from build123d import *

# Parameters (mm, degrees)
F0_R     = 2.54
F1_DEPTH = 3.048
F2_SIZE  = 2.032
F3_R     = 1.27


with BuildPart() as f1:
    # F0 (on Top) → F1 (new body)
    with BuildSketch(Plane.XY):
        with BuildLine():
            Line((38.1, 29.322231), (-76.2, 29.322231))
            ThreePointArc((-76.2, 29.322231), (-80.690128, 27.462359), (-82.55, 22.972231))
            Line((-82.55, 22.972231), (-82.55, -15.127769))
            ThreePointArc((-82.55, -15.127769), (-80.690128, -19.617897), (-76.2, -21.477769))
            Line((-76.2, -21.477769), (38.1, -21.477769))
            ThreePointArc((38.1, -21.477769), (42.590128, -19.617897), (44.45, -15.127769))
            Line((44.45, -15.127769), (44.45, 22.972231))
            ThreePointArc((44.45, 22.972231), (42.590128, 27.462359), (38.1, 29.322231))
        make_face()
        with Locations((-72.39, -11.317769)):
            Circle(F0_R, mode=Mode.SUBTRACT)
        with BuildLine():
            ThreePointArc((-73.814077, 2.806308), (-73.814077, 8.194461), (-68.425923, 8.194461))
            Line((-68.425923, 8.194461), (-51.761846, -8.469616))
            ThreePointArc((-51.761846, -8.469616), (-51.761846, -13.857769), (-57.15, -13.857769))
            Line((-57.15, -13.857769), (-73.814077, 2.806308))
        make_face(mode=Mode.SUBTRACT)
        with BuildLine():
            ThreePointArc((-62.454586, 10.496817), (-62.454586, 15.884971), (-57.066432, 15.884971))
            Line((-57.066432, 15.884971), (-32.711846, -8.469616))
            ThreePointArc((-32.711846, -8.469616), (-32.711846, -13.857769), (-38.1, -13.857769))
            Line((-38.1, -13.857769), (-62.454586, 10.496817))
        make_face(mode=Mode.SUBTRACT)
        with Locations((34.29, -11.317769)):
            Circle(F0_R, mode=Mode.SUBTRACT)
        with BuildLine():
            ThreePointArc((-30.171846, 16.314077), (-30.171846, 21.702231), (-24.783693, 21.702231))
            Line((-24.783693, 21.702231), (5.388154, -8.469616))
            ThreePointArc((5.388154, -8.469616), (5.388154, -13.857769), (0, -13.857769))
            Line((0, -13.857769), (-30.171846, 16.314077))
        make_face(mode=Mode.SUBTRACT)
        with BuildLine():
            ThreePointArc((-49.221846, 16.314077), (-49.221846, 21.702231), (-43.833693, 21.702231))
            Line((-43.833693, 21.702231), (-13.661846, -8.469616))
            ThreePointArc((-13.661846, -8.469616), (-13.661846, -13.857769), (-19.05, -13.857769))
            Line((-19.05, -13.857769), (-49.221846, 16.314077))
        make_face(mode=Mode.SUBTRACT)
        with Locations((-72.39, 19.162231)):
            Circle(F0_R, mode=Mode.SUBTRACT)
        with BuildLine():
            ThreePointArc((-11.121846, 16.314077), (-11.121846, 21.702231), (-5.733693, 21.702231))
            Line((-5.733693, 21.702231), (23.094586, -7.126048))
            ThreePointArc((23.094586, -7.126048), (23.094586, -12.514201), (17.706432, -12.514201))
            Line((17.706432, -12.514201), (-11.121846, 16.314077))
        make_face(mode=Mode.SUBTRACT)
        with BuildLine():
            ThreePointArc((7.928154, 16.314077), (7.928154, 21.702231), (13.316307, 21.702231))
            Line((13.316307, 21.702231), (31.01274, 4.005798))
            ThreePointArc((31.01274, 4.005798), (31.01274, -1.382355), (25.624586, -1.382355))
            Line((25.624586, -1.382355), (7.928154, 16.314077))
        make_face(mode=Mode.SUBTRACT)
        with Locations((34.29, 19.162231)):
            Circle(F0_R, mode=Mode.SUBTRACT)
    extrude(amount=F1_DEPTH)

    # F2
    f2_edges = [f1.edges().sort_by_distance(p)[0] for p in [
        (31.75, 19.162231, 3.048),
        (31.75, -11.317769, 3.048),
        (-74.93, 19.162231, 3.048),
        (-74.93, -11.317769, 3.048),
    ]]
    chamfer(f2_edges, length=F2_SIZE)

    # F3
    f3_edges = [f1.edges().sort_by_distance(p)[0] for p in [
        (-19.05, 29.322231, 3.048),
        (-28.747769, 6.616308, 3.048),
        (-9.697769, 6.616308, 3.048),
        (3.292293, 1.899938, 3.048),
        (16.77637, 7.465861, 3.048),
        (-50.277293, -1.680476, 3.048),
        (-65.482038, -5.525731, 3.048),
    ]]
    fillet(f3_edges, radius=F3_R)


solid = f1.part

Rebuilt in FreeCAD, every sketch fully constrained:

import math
import FreeCAD as App
import Part
import Sketcher

V = App.Vector
Q = App.Units.Quantity


def edges_at(feature, points):
    """Names of the edges that pass closest to the given points."""
    edges = feature.Shape.Edges
    near = lambda p: min(range(len(edges)), key=lambda i: edges[i].distToShape(Part.Vertex(*p))[0])
    return sorted({f"Edge{near(p) + 1}" for p in points})

doc = App.newDocument("Part")
body = doc.addObject("PartDesign::Body", "Body")

sketch1 = body.newObject("Sketcher::SketchObject", "Sketch")
sketch1.AttachmentSupport = (doc.getObject("XY_Plane"), [""])
sketch1.MapMode = "FlatFace"
sketch1.addGeometry([
    Part.LineSegment(V(38.1, 29.322231, 0), V(-76.2, 29.322231, 0)),
    Part.ArcOfCircle(Part.Circle(V(-76.2, 22.972231, 0), V(0, 0, 1), 6.35), math.radians(90.000002), math.radians(179.999998)),
    Part.LineSegment(V(-82.55, 22.972231, 0), V(-82.55, -15.127769, 0)),
    Part.ArcOfCircle(Part.Circle(V(-76.2, -15.127769, 0), V(0, 0, 1), 6.35), math.radians(-179.999998), math.radians(-90.000002)),
    Part.LineSegment(V(-76.2, -21.477769, 0), V(38.1, -21.477769, 0)),
    Part.ArcOfCircle(Part.Circle(V(38.1, -15.127769, 0), V(0, 0, 1), 6.35), math.radians(-89.999998), math.radians(-0.000002)),
    Part.LineSegment(V(44.45, -15.127769, 0), V(44.45, 22.972231, 0)),
    Part.ArcOfCircle(Part.Circle(V(38.1, 22.972231, 0), V(0, 0, 1), 6.35), math.radians(0.000002), math.radians(89.999998)),
    Part.Circle(V(-72.39, -11.317769, 0), V(0, 0, 1), 2.54),
    Part.LineSegment(V(-57.15, -13.857769, 0), V(-73.814077, 2.806308, 0)),
    Part.ArcOfCircle(Part.Circle(V(-71.12, 5.500385, 0), V(0, 0, 1), 3.81), math.radians(44.999995), math.radians(224.999995)),
    Part.LineSegment(V(-68.425923, 8.194461, 0), V(-51.761846, -8.469616, 0)),
    Part.ArcOfCircle(Part.Circle(V(-54.455923, -11.163692, 0), V(0, 0, 1), 3.81), math.radians(-135.000005), math.radians(44.999995)),
    Part.LineSegment(V(-38.1, -13.857769, 0), V(-62.454586, 10.496817, 0)),
    Part.ArcOfCircle(Part.Circle(V(-59.760509, 13.190894, 0), V(0, 0, 1), 3.81), math.radians(45), math.radians(225)),
    Part.LineSegment(V(-57.066432, 15.884971, 0), V(-32.711846, -8.469616, 0)),
    Part.ArcOfCircle(Part.Circle(V(-35.405923, -11.163692, 0), V(0, 0, 1), 3.81), math.radians(-135.000005), math.radians(44.999995)),
    Part.Circle(V(34.29, -11.317769, 0), V(0, 0, 1), 2.54),
    Part.LineSegment(V(0, -13.857769, 0), V(-30.171846, 16.314077, 0)),
    Part.ArcOfCircle(Part.Circle(V(-27.47777, 19.008154, 0), V(0, 0, 1), 3.81), math.radians(45.000005), math.radians(225.000005)),
    Part.LineSegment(V(-24.783693, 21.702231, 0), V(5.388154, -8.469616, 0)),
    Part.ArcOfCircle(Part.Circle(V(2.694077, -11.163692, 0), V(0, 0, 1), 3.81), math.radians(-135.000005), math.radians(44.999995)),
    Part.LineSegment(V(-19.05, -13.857769, 0), V(-49.221846, 16.314077, 0)),
    Part.ArcOfCircle(Part.Circle(V(-46.527769, 19.008154, 0), V(0, 0, 1), 3.81), math.radians(45.000005), math.radians(225.000005)),
    Part.LineSegment(V(-43.833693, 21.702231, 0), V(-13.661846, -8.469616, 0)),
    Part.ArcOfCircle(Part.Circle(V(-16.355923, -11.163692, 0), V(0, 0, 1), 3.81), math.radians(-135.000005), math.radians(44.999995)),
    Part.Circle(V(-72.39, 19.162231, 0), V(0, 0, 1), 2.54),
    Part.LineSegment(V(17.706432, -12.514201, 0), V(-11.121846, 16.314077, 0)),
    Part.ArcOfCircle(Part.Circle(V(-8.42777, 19.008154, 0), V(0, 0, 1), 3.81), math.radians(45.000005), math.radians(225.000005)),
    Part.LineSegment(V(-5.733693, 21.702231, 0), V(23.094586, -7.126048, 0)),
    Part.ArcOfCircle(Part.Circle(V(20.400509, -9.820125, 0), V(0, 0, 1), 3.81), math.radians(-135.000005), math.radians(44.999995)),
    Part.LineSegment(V(25.624586, -1.382355, 0), V(7.928154, 16.314077, 0)),
    Part.ArcOfCircle(Part.Circle(V(10.622231, 19.008154, 0), V(0, 0, 1), 3.81), math.radians(45.000005), math.radians(225.000005)),
    Part.LineSegment(V(13.316307, 21.702231, 0), V(31.01274, 4.005798, 0)),
    Part.ArcOfCircle(Part.Circle(V(28.318663, 1.311721, 0), V(0, 0, 1), 3.81), math.radians(-135.000005), math.radians(44.999995)),
    Part.Circle(V(34.29, 19.162231, 0), V(0, 0, 1), 2.54),
], False)
sketch1.addConstraint([
    Sketcher.Constraint("Tangent", 0, 2, 1, 1),
    Sketcher.Constraint("Tangent", 1, 2, 2, 1),
    Sketcher.Constraint("Tangent", 2, 2, 3, 1),
    Sketcher.Constraint("Tangent", 3, 2, 4, 1),
    Sketcher.Constraint("Tangent", 4, 2, 5, 1),
    Sketcher.Constraint("Tangent", 5, 2, 6, 1),
    Sketcher.Constraint("Tangent", 6, 2, 7, 1),
    Sketcher.Constraint("Tangent", 7, 2, 0, 1),
    Sketcher.Constraint("Tangent", 9, 2, 10, 2),
    Sketcher.Constraint("Tangent", 10, 1, 11, 1),
    Sketcher.Constraint("Tangent", 11, 2, 12, 2),
    Sketcher.Constraint("Tangent", 12, 1, 9, 1),
    Sketcher.Constraint("Tangent", 13, 2, 14, 2),
    Sketcher.Constraint("Tangent", 14, 1, 15, 1),
    Sketcher.Constraint("Tangent", 15, 2, 16, 2),
    Sketcher.Constraint("Tangent", 16, 1, 13, 1),
    Sketcher.Constraint("Tangent", 18, 2, 19, 2),
    Sketcher.Constraint("Tangent", 19, 1, 20, 1),
    Sketcher.Constraint("Tangent", 20, 2, 21, 2),
    Sketcher.Constraint("Tangent", 21, 1, 18, 1),
    Sketcher.Constraint("Tangent", 22, 2, 23, 2),
    Sketcher.Constraint("Tangent", 23, 1, 24, 1),
    Sketcher.Constraint("Tangent", 24, 2, 25, 2),
    Sketcher.Constraint("Tangent", 25, 1, 22, 1),
    Sketcher.Constraint("Tangent", 27, 2, 28, 2),
    Sketcher.Constraint("Tangent", 28, 1, 29, 1),
    Sketcher.Constraint("Tangent", 29, 2, 30, 2),
    Sketcher.Constraint("Tangent", 30, 1, 27, 1),
    Sketcher.Constraint("Tangent", 31, 2, 32, 2),
    Sketcher.Constraint("Tangent", 32, 1, 33, 1),
    Sketcher.Constraint("Tangent", 33, 2, 34, 2),
    Sketcher.Constraint("Tangent", 34, 1, 31, 1),
    Sketcher.Constraint("Horizontal", 0),
    Sketcher.Constraint("Vertical", 2),
    Sketcher.Constraint("Horizontal", 4),
    Sketcher.Constraint("Vertical", 6),
    Sketcher.Constraint("Equal", 1, 3),
    Sketcher.Constraint("Equal", 3, 5),
    Sketcher.Constraint("Equal", 5, 7),
    Sketcher.Constraint("Equal", 10, 12),
    Sketcher.Constraint("Equal", 12, 14),
    Sketcher.Constraint("Equal", 14, 16),
    Sketcher.Constraint("Equal", 8, 17),
    Sketcher.Constraint("Equal", 16, 19),
    Sketcher.Constraint("Equal", 19, 21),
    Sketcher.Constraint("Equal", 21, 23),
    Sketcher.Constraint("Equal", 23, 25),
    Sketcher.Constraint("Equal", 17, 26),
    Sketcher.Constraint("Equal", 25, 28),
    Sketcher.Constraint("Equal", 28, 30),
    Sketcher.Constraint("Equal", 30, 32),
    Sketcher.Constraint("Equal", 32, 34),
    Sketcher.Constraint("Equal", 26, 35),
    Sketcher.Constraint("PointOnObject", 21, 1, -2),
    Sketcher.Constraint("Parallel", 11, 13),
    Sketcher.Constraint("Parallel", 15, 18),
    Sketcher.Constraint("Parallel", 20, 22),
    Sketcher.Constraint("Parallel", 24, 27),
    Sketcher.Constraint("Parallel", 29, 31),
    Sketcher.Constraint("Horizontal", 12, 3, 16, 3),
    Sketcher.Constraint("Horizontal", 8, 3, 17, 3),
    Sketcher.Constraint("Horizontal", 16, 3, 21, 3),
    Sketcher.Constraint("Horizontal", 19, 3, 23, 3),
    Sketcher.Constraint("Horizontal", 21, 3, 25, 3),
    Sketcher.Constraint("Horizontal", 23, 3, 28, 3),
    Sketcher.Constraint("Horizontal", 28, 3, 32, 3),
    Sketcher.Constraint("Horizontal", 26, 3, 35, 3),
    Sketcher.Constraint("Vertical", 8, 3, 26, 3),
    Sketcher.Constraint("Vertical", 17, 3, 35, 3),
    Sketcher.Constraint("Diameter", 8, Q("0.2 in")),
    Sketcher.Constraint("Radius", 1, Q("0.25 in")),
    Sketcher.Constraint("Radius", 10, Q("0.15 in")),
    Sketcher.Constraint("DistanceX", 0, 2, 0, 1, Q("4.5 in")),
    Sketcher.Constraint("DistanceY", 2, 2, 2, 1, Q("1.5 in")),
    Sketcher.Constraint("DistanceX", 1, 3, -1, 1, Q("3 in")),
    Sketcher.Constraint("Angle", 9, Q("135 deg")),
    Sketcher.Constraint("DistanceX", 10, 3, -1, 1, Q("2.8 in")),
    Sketcher.Constraint("DistanceX", 16, 1, -1, 1, Q("1.5 in")),
    Sketcher.Constraint("DistanceX", 12, 3, 25, 3, Q("1.5 in")),
    Sketcher.Constraint("DistanceY", 8, 3, 26, 3, Q("1.2 in")),
    Sketcher.Constraint("DistanceX", 23, 3, 28, 3, Q("1.5 in")),
    Sketcher.Constraint("DistanceX", 19, 3, 32, 3, Q("1.5 in")),
    Sketcher.Constraint("DistanceY", 26, 3, 0, 2, Q("0.4 in")),
    Sketcher.Constraint("DistanceX", 1, 2, 26, 3, Q("0.4 in")),
    Sketcher.Constraint("DistanceX", 17, 3, 5, 2, Q("0.4 in")),
    Sketcher.Constraint("DistanceX", 8, 3, 12, 1, Q("0.6 in")),
    Sketcher.Constraint("DistanceY", 12, 1, 8, 3, Q("0.1 in")),
    Sketcher.Constraint("DistanceX", 15, 2, 18, 2, Q("0.1 in")),
    Sketcher.Constraint("DistanceY", 30, 1, -1, 1, Q("12.514201 mm")),
    Sketcher.Constraint("DistanceY", -1, 1, 33, 2, Q("4.005798 mm")),
    Sketcher.Constraint("Distance", 27, Q("40.769342 mm")),
    Sketcher.Constraint("DistanceX", 14, 3, -1, 1, Q("59.760509 mm")),
])
pad1 = body.newObject("PartDesign::Pad", "Pad")
pad1.Profile = sketch1
pad1.Length = Q("0.12 in")
doc.recompute()

chamfer = body.newObject("PartDesign::Chamfer", "Chamfer")
chamfer.Base = (pad1, edges_at(pad1, [
    (31.75, 19.162, 3.048),
    (31.75, -11.318, 3.048),
    (-74.93, 19.162, 3.048),
    (-74.93, -11.318, 3.048),
]))
chamfer.Size = Q("0.08 in")
doc.recompute()

fillet = body.newObject("PartDesign::Fillet", "Fillet")
fillet.Base = (chamfer, edges_at(chamfer, [
    (-19.05, 29.322, 3.048),
    (-28.748, 6.616, 3.048),
    (-9.698, 6.616, 3.048),
    (3.292, 1.9, 3.048),
    (16.776, 7.466, 3.048),
    (-50.277, -1.68, 3.048),
    (-65.482, -5.526, 3.048),
]))
fillet.Radius = Q("0.05 in")

doc.recompute()
